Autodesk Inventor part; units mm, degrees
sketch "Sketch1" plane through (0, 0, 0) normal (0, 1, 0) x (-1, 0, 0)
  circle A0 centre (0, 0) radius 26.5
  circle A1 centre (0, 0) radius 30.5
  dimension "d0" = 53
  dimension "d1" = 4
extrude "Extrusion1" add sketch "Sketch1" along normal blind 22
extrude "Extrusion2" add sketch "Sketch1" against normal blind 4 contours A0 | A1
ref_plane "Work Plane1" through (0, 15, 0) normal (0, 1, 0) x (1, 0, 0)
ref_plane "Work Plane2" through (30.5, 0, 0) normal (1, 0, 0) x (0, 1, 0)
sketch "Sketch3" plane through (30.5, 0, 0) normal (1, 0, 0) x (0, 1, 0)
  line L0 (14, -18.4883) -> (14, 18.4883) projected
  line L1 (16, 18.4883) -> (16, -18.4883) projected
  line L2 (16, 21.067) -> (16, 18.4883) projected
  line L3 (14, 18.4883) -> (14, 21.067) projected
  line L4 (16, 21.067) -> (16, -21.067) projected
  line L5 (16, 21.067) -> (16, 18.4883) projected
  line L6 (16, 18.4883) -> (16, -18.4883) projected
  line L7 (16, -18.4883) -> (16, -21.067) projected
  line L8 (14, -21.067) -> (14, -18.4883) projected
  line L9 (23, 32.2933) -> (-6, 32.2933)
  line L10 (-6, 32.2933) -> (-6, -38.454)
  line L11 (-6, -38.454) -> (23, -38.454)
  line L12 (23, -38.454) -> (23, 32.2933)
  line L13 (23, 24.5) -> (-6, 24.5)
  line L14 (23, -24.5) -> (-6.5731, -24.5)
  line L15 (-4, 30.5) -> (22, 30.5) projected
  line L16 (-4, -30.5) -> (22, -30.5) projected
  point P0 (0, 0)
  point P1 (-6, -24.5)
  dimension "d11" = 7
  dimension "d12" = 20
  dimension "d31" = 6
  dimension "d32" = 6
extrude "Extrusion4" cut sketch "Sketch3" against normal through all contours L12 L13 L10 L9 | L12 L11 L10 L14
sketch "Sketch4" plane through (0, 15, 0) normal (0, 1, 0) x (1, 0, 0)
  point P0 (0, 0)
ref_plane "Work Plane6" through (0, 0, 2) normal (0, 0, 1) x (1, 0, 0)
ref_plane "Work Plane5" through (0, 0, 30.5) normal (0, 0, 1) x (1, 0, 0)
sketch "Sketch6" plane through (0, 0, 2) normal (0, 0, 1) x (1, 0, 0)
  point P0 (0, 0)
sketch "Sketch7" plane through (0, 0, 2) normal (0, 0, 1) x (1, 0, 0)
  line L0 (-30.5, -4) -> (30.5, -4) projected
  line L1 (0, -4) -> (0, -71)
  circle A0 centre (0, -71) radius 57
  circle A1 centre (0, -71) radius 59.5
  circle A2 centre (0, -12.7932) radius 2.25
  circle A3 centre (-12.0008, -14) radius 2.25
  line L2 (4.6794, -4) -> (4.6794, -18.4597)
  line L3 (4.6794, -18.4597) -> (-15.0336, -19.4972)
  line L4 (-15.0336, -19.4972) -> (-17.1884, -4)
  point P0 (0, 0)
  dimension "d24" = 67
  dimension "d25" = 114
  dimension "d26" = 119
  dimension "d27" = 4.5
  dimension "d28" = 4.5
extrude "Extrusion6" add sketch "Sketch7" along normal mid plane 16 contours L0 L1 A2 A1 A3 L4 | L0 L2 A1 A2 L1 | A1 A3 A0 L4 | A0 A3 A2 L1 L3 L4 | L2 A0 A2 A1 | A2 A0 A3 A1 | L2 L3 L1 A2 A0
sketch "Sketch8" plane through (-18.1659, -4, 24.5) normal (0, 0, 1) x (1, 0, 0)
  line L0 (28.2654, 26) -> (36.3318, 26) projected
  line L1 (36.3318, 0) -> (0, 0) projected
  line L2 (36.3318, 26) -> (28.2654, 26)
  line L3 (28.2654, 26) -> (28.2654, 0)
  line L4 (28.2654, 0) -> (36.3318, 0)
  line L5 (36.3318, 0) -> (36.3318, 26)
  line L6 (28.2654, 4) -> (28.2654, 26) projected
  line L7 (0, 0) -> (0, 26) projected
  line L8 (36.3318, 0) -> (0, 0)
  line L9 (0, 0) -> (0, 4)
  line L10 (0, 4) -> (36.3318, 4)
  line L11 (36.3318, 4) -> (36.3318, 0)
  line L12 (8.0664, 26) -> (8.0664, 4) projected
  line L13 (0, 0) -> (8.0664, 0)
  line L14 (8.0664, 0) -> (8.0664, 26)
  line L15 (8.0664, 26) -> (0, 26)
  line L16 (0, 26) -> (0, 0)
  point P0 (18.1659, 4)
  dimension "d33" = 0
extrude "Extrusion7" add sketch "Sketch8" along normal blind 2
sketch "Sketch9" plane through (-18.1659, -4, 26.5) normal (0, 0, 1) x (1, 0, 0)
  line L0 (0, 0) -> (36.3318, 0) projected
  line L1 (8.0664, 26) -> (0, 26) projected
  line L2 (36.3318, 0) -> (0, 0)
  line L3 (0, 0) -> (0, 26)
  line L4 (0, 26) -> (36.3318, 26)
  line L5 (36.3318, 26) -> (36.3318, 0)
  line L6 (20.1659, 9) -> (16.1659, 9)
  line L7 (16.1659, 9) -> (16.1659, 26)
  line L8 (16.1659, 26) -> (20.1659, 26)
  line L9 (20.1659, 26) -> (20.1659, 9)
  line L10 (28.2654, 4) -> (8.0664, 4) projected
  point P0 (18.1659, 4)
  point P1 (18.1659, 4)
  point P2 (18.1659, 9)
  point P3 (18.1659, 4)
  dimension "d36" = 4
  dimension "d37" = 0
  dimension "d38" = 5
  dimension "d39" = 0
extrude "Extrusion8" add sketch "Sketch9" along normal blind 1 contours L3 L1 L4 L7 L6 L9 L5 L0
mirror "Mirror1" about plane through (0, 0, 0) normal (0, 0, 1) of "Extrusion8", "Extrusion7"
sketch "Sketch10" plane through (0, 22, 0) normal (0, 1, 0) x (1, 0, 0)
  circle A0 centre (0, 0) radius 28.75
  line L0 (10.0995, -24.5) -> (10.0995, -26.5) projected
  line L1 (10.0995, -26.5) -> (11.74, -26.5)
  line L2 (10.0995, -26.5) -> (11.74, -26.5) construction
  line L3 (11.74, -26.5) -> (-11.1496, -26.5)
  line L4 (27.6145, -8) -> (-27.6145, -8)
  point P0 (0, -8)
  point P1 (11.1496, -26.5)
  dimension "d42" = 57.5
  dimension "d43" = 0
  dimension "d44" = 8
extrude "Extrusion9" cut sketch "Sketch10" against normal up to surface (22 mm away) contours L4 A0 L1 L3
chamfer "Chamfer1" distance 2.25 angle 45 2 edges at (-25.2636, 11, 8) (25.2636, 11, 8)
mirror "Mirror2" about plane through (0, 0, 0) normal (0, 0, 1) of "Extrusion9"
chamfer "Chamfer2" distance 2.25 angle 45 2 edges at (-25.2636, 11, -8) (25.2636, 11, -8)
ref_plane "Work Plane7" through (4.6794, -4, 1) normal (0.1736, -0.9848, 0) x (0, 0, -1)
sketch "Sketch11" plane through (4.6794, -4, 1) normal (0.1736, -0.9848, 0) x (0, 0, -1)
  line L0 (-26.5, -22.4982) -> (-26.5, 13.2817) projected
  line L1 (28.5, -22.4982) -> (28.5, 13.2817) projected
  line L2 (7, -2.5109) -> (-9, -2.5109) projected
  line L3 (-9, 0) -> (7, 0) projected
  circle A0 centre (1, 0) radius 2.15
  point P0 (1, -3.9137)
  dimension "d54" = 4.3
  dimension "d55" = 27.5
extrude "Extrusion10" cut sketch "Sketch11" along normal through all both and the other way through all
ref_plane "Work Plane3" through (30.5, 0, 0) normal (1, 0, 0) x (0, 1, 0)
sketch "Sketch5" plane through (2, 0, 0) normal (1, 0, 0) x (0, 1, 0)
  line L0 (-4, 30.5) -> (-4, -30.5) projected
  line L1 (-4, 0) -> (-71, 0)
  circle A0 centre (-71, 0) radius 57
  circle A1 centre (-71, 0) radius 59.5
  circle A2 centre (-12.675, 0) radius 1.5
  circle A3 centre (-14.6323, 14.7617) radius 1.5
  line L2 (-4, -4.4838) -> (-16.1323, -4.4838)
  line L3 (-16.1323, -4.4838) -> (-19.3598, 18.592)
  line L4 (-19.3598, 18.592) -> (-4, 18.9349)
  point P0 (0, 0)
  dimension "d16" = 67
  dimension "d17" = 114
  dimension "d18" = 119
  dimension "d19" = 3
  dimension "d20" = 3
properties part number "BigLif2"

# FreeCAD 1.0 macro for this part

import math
import FreeCAD as App
import Part
import Sketcher
Q = App.Units.Quantity


def edges_at(feature, points):
    """Names of the edges that pass closest to the given points."""
    edges = feature.Shape.Edges
    near = lambda p: min(range(len(edges)), key=lambda i: edges[i].distToShape(Part.Vertex(*p))[0])
    return sorted({f"Edge{near(p) + 1}" for p in points})


def add_polygon(sketch, points):
    """Adds a closed chain of lines whose ends are joined by coincident constraints."""
    first, n = sketch.GeometryCount, len(points)
    for a, b in zip(points, points[1:] + points[:1]):
        sketch.addGeometry(Part.LineSegment(App.Vector(*a, 0), App.Vector(*b, 0)), False)
    for i in range(n):
        sketch.addConstraint(Sketcher.Constraint("Coincident", first + i, 2, first + (i + 1) % n, 1))

doc = App.newDocument("Part")
body = doc.addObject("PartDesign::Body", "Body")

# Sketch on XZ plane
sketch1 = doc.addObject("Sketcher::SketchObject", "Sketch")
body.addObject(sketch1)
sketch1.AttachmentSupport = (doc.XZ_Plane, [""])
sketch1.MapMode = "FlatFace"
sketch1.addGeometry([
    Part.Circle(App.Vector(0, 0, 0), App.Vector(0, 0, 1), 30.5),
    Part.Circle(App.Vector(0, 0, 0), App.Vector(0, 0, 1), 26.5),
], False)
sketch1.addConstraint([
    Sketcher.Constraint("Coincident", 0, 3, -1, 1),
    Sketcher.Constraint("Coincident", 1, 3, -1, 1),
    Sketcher.Constraint("Diameter", 1, Q("53 mm")),
    Sketcher.Constraint("Diameter", 0, Q("61 mm")),
])
pad1 = doc.addObject("PartDesign::Pad", "Pad")
body.addObject(pad1)
pad1.Profile = sketch1
pad1.Length = 22
pad1.Reversed = True

# Sketch on XZ plane
sketch2 = doc.addObject("Sketcher::SketchObject", "Sketch001")
body.addObject(sketch2)
sketch2.AttachmentSupport = (doc.XZ_Plane, [""])
sketch2.MapMode = "FlatFace"
sketch2.addGeometry(Part.Circle(App.Vector(0, 0, 0), App.Vector(0, 0, 1), 30.5), False)
sketch2.addConstraint([
    Sketcher.Constraint("Coincident", 0, 3, -1, 1),
    Sketcher.Constraint("Diameter", 0, Q("61 mm")),
])
pad2 = doc.addObject("PartDesign::Pad", "Pad001")
body.addObject(pad2)
pad2.Profile = sketch2
pad2.Length = 4

# Sketch on YZ plane
sketch3 = doc.addObject("Sketcher::SketchObject", "Sketch002")
body.addObject(sketch3)
sketch3.AttachmentSupport = (doc.YZ_Plane, [""])
sketch3.MapMode = "FlatFace"
sketch3.AttachmentOffset = App.Placement(App.Vector(0, 0, 30.5), App.Rotation())
add_polygon(sketch3, [(23, 24.5), (23, 32.2933), (-6, 32.2933), (-6, 24.5)])  # lines 0-3
add_polygon(sketch3, [(23, -38.454), (23, -24.5), (-6, -24.5), (-6, -38.454)])  # lines 4-7
sketch3.addConstraint([
    Sketcher.Constraint("Vertical", 0),
    Sketcher.Constraint("Horizontal", 1),
    Sketcher.Constraint("Vertical", 2),
    Sketcher.Constraint("Horizontal", 3),
    Sketcher.Constraint("Vertical", 4),
    Sketcher.Constraint("Horizontal", 5),
    Sketcher.Constraint("Vertical", 6),
    Sketcher.Constraint("Horizontal", 7),
    Sketcher.Constraint("Symmetric", 3, 2, 4, 2, -1),
    Sketcher.Constraint("Vertical", 2, 2, 5, 2),
    Sketcher.Constraint("DistanceX", 1, 2, -1, 1, Q("6 mm")),
    Sketcher.Constraint("DistanceX", 1, 2, 1, 1, Q("29 mm")),
    Sketcher.Constraint("DistanceY", 4, 2, 3, 2, Q("49 mm")),
    Sketcher.Constraint("DistanceY", 4, 1, 4, 2, Q("13.954 mm")),
    Sketcher.Constraint("DistanceY", 0, 1, 0, 2, Q("7.7933 mm")),
])
pocket1 = doc.addObject("PartDesign::Pocket", "Pocket")
body.addObject(pocket1)
pocket1.Profile = sketch3
pocket1.Type = "ThroughAll"

# Sketch on XY plane
sketch4 = doc.addObject("Sketcher::SketchObject", "Sketch003")
body.addObject(sketch4)
sketch4.AttachmentSupport = (doc.XY_Plane, [""])
sketch4.MapMode = "FlatFace"
sketch4.AttachmentOffset = App.Placement(App.Vector(0, 0, 2), App.Rotation())
add_polygon(sketch4, [(-17.1884, -4), (-15.0336, -19.4972), (4.6794, -18.4597), (4.6794, -4)])  # lines 0-3
sketch4.addGeometry(Part.Circle(App.Vector(0, -12.7932, 0), App.Vector(0, 0, 1), 2.25), False)  # 4
sketch4.addGeometry(Part.Circle(App.Vector(-12.0008, -14, 0), App.Vector(0, 0, 1), 2.25), False)  # 5
sketch4.addConstraint([
    Sketcher.Constraint("Vertical", 2),
    Sketcher.Constraint("Horizontal", 3),
    Sketcher.Constraint("Equal", 4, 5),
    Sketcher.Constraint("PointOnObject", 4, 3, -2),
    Sketcher.Constraint("Diameter", 4, Q("4.5 mm")),
    Sketcher.Constraint("DistanceY", 5, 3, -1, 1, Q("14 mm")),
    Sketcher.Constraint("DistanceY", 2, 2, -1, 1, Q("4 mm")),
    Sketcher.Constraint("DistanceX", 3, 2, 3, 1, Q("21.8678 mm")),
    Sketcher.Constraint("DistanceY", 2, 1, 2, 2, Q("14.4597 mm")),
    Sketcher.Constraint("DistanceY", 0, 2, 4, 3, Q("6.704 mm")),
    Sketcher.Constraint("DistanceX", 0, 2, 1, 2, Q("19.713 mm")),
    Sketcher.Constraint("Distance", 0, Q("15.6463 mm")),
    Sketcher.Constraint("DistanceX", 5, 3, -1, 1, Q("12.0008 mm")),
    Sketcher.Constraint("DistanceX", 0, 2, -1, 1, Q("15.0336 mm")),
])
pad3 = doc.addObject("PartDesign::Pad", "Pad002")
body.addObject(pad3)
pad3.Profile = sketch4
pad3.Length = 16
pad3.Midplane = True

# Sketch on XY plane
sketch5 = doc.addObject("Sketcher::SketchObject", "Sketch004")
body.addObject(sketch5)
sketch5.AttachmentSupport = (doc.XY_Plane, [""])
sketch5.MapMode = "FlatFace"
sketch5.AttachmentOffset = App.Placement(App.Vector(0, 0, 24.5), App.Rotation())
add_polygon(sketch5, [(18.1659, 22), (10.0995, 22), (10.0995, 0), (-10.0995, 0), (-10.0995, 22), (-18.1659, 22), (-18.1659, -4), (18.1659, -4)])  # lines 0-7
sketch5.addConstraint([
    Sketcher.Constraint("Horizontal", 0),
    Sketcher.Constraint("Vertical", 1),
    Sketcher.Constraint("Horizontal", 2),
    Sketcher.Constraint("Vertical", 3),
    Sketcher.Constraint("Horizontal", 4),
    Sketcher.Constraint("Vertical", 5),
    Sketcher.Constraint("Horizontal", 6),
    Sketcher.Constraint("Vertical", 7),
    Sketcher.Constraint("Symmetric", 1, 2, 2, 2, -1, 1),
    Sketcher.Constraint("Symmetric", 4, 2, 7, 2, -2),
    Sketcher.Constraint("DistanceY", 1, 2, 1, 1, Q("22 mm")),
    Sketcher.Constraint("DistanceY", 5, 2, 5, 1, Q("26 mm")),
    Sketcher.Constraint("DistanceX", 2, 2, 2, 1, Q("20.199 mm")),
    Sketcher.Constraint("DistanceX", 0, 2, 0, 1, Q("8.0664 mm")),
])
pad4 = doc.addObject("PartDesign::Pad", "Pad003")
body.addObject(pad4)
pad4.Profile = sketch5
pad4.Length = 2

# Sketch on XY plane
sketch6 = doc.addObject("Sketcher::SketchObject", "Sketch005")
body.addObject(sketch6)
sketch6.AttachmentSupport = (doc.XY_Plane, [""])
sketch6.MapMode = "FlatFace"
sketch6.AttachmentOffset = App.Placement(App.Vector(0, 0, 26.5), App.Rotation())
add_polygon(sketch6, [(-18.1659, 22), (-18.1659, -4), (18.1659, -4), (18.1659, 22), (2, 22), (2, 5), (-2, 5), (-2, 22)])  # lines 0-7
sketch6.addConstraint([
    Sketcher.Constraint("Vertical", 0),
    Sketcher.Constraint("Horizontal", 1),
    Sketcher.Constraint("Vertical", 2),
    Sketcher.Constraint("Horizontal", 3),
    Sketcher.Constraint("Vertical", 4),
    Sketcher.Constraint("Horizontal", 5),
    Sketcher.Constraint("Vertical", 6),
    Sketcher.Constraint("Horizontal", 7),
    Sketcher.Constraint("Symmetric", 3, 2, 6, 2, -2),
    Sketcher.Constraint("Equal", 3, 7),
    Sketcher.Constraint("DistanceX", 5, 2, 5, 1, Q("4 mm")),
    Sketcher.Constraint("DistanceY", 0, 2, -1, 1, Q("4 mm")),
    Sketcher.Constraint("DistanceY", -1, 1, 4, 2, Q("5 mm")),
    Sketcher.Constraint("DistanceY", 0, 2, 0, 1, Q("26 mm")),
    Sketcher.Constraint("DistanceX", 3, 2, 3, 1, Q("16.166 mm")),
])
pad5 = doc.addObject("PartDesign::Pad", "Pad004")
body.addObject(pad5)
pad5.Profile = sketch6
pad5.Length = 1
doc.recompute()

mirrored = doc.addObject("PartDesign::Mirrored", "Mirrored")
body.addObject(mirrored)
mirrored.Originals = [pad5, pad4]
mirrored.MirrorPlane = (doc.XY_Plane, [""])
body.Tip = mirrored

# Sketch on XZ plane
sketch7 = doc.addObject("Sketcher::SketchObject", "Sketch006")
body.addObject(sketch7)
sketch7.AttachmentSupport = (doc.XZ_Plane, [""])
sketch7.MapMode = "FlatFace"
sketch7.AttachmentOffset = App.Placement(App.Vector(0, 0, -22), App.Rotation())
sketch7.addGeometry([
    Part.LineSegment(App.Vector(27.6145, 8, 0), App.Vector(-27.6145, 8, 0)),
    Part.ArcOfCircle(Part.Circle(App.Vector(0, 0, 0), App.Vector(0, 0, 1), 28.75), math.radians(112.818419), math.radians(163.843546)),
    Part.LineSegment(App.Vector(-11.1496, 26.5, 0), App.Vector(11.149552, 26.5, 0)),
    Part.ArcOfCircle(Part.Circle(App.Vector(0, 0, 0), App.Vector(0, 0, 1), 28.75), math.radians(16.156454), math.radians(67.18167)),
], False)
sketch7.addConstraint([
    Sketcher.Constraint("Coincident", 0, 2, 1, 2),
    Sketcher.Constraint("Coincident", 1, 1, 2, 1),
    Sketcher.Constraint("Coincident", 2, 2, 3, 2),
    Sketcher.Constraint("Coincident", 3, 1, 0, 1),
    Sketcher.Constraint("Horizontal", 0),
    Sketcher.Constraint("Horizontal", 2),
    Sketcher.Constraint("Coincident", 1, 3, -1, 1),
    Sketcher.Constraint("Coincident", 3, 3, -1, 1),
    Sketcher.Constraint("Equal", 1, 3),
    Sketcher.Constraint("Radius", 1, Q("28.75 mm")),
    Sketcher.Constraint("DistanceY", -1, 1, 0, 2, Q("8 mm")),
    Sketcher.Constraint("DistanceY", -1, 1, 1, 1, Q("26.5 mm")),
])
pocket2 = doc.addObject("PartDesign::Pocket", "Pocket001")
body.addObject(pocket2)
pocket2.Profile = sketch7
pocket2.Length = 22
pocket2.Reversed = True
doc.recompute()

chamfer = doc.addObject("PartDesign::Chamfer", "Chamfer")
body.addObject(chamfer)
chamfer.Base = (pocket2, edges_at(pocket2, [(-25.264, 11, 8), (25.264, 11, 8)]))
chamfer.Size = 2.25
doc.recompute()

mirrored2 = doc.addObject("PartDesign::Mirrored", "Mirrored001")
body.addObject(mirrored2)
mirrored2.Originals = [pocket2]
mirrored2.MirrorPlane = (doc.XY_Plane, [""])
body.Tip = mirrored2
doc.recompute()

chamfer2 = doc.addObject("PartDesign::Chamfer", "Chamfer001")
body.addObject(chamfer2)
chamfer2.Base = (mirrored2, edges_at(mirrored2, [(-25.264, 11, -8), (25.264, 11, -8)]))
chamfer2.Size = 2.25

# Sketch on an angled plane
sketch8 = doc.addObject("Sketcher::SketchObject", "Sketch007")
body.addObject(sketch8)
sketch8.Placement = App.Placement(App.Vector(4.6794, -4, 1), App.Rotation(App.Vector(0, 0, -1), App.Vector(0.984807753, 0.173648178, 0), App.Vector(0.173648178, -0.984807753, 0), "ZXY"))
sketch8.addGeometry(Part.Circle(App.Vector(1, 0, 0), App.Vector(0, 0, 1), 2.15), False)
sketch8.addConstraint([
    Sketcher.Constraint("PointOnObject", 0, 3, -1),
    Sketcher.Constraint("Diameter", 0, Q("4.3 mm")),
    Sketcher.Constraint("DistanceX", -1, 1, 0, 3, Q("1 mm")),
])
pocket3 = doc.addObject("PartDesign::Pocket", "Pocket002")
body.addObject(pocket3)
pocket3.Profile = sketch8
pocket3.Type = "ThroughAll"
pocket3.Midplane = True

doc.recompute()
